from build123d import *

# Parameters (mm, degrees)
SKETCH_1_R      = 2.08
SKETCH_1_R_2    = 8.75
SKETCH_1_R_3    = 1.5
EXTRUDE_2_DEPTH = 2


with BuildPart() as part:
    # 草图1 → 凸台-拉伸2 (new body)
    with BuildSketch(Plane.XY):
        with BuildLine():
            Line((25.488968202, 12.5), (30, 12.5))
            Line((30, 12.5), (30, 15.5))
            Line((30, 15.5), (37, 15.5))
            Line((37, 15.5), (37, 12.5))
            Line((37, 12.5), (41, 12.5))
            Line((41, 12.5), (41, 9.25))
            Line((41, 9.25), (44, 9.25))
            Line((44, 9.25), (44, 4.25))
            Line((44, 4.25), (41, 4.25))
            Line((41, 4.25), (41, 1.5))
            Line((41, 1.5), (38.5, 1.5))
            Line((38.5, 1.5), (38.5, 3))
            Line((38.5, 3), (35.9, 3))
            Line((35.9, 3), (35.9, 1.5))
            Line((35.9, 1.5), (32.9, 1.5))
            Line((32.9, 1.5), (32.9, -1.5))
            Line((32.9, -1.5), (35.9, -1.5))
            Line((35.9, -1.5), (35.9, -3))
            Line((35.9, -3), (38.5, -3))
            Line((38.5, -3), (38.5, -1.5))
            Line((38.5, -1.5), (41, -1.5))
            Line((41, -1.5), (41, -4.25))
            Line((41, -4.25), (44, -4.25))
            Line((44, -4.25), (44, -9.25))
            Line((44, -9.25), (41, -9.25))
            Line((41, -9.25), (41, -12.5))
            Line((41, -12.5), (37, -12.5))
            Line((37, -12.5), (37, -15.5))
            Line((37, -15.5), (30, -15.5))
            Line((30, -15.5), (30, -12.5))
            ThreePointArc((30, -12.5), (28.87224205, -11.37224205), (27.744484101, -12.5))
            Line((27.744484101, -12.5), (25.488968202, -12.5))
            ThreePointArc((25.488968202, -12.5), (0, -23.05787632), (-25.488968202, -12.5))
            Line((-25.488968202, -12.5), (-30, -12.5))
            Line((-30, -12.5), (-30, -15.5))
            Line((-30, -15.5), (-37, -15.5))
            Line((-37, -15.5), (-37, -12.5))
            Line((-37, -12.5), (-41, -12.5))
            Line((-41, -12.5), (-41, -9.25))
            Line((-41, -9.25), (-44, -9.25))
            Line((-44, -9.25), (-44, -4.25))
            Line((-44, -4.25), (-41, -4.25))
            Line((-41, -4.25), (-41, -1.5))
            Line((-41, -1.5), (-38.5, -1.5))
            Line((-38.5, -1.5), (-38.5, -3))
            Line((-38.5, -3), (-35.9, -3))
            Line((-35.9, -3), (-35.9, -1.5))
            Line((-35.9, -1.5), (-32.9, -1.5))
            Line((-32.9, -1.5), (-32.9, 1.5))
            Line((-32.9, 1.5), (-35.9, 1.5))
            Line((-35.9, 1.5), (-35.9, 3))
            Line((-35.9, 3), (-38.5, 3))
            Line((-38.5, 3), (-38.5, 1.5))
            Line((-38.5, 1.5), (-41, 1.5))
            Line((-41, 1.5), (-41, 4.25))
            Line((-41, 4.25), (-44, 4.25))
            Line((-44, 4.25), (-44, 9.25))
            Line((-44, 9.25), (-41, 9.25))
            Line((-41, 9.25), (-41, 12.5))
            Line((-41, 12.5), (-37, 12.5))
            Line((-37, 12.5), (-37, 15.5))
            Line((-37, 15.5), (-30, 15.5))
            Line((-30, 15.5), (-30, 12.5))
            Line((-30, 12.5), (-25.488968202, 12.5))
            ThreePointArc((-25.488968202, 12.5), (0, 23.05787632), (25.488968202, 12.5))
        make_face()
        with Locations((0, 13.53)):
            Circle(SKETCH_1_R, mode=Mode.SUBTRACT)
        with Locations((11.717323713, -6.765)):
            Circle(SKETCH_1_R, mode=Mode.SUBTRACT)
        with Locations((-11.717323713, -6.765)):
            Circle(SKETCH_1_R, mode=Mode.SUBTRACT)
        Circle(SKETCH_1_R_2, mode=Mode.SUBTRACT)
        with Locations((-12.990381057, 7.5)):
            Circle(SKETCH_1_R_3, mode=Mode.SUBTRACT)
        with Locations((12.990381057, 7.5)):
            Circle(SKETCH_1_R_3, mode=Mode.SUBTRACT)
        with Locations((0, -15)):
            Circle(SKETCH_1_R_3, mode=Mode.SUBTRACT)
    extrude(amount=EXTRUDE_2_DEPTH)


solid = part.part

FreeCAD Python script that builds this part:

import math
import FreeCAD as App
import Part
import Sketcher
from FreeCAD import Vector
Q = App.Units.Quantity

doc = App.newDocument("Part")
body = doc.addObject("PartDesign::Body", "Body")

# Sketch on XY plane
sketch1 = body.newObject("Sketcher::SketchObject", "Sketch")
sketch1.AttachmentSupport = (doc.getObject("XY_Plane"), [""])
sketch1.MapMode = "FlatFace"
sketch1.addGeometry([
    Part.LineSegment(Vector(30, 12.5, 0), Vector(25.5, 12.5, 0)),  # 0
    Part.ArcOfCircle(Part.Circle(Vector(0, -13, 0), Vector(0, 0, 1), 36), math.radians(45), math.radians(135)),  # 1
    Part.LineSegment(Vector(-25.5, 12.5, 0), Vector(-30, 12.5, 0)),  # 2
    Part.LineSegment(Vector(-30, 12.5, 0), Vector(-30, 15.5, 0)),  # 3
    Part.LineSegment(Vector(-30, 15.5, 0), Vector(-37, 15.5, 0)),  # 4
    Part.LineSegment(Vector(-37, 15.5, 0), Vector(-37, 12.5, 0)),  # 5
    Part.LineSegment(Vector(-37, 12.5, 0), Vector(-41, 12.5, 0)),  # 6
    Part.LineSegment(Vector(-41, 12.5, 0), Vector(-41, 9.2, 0)),  # 7
    Part.LineSegment(Vector(-41, 9.2, 0), Vector(-44, 9.2, 0)),  # 8
    Part.LineSegment(Vector(-44, 9.2, 0), Vector(-44, 4.2, 0)),  # 9
    Part.LineSegment(Vector(-44, 4.2, 0), Vector(-41, 4.2, 0)),  # 10
    Part.LineSegment(Vector(-41, 4.2, 0), Vector(-41, 1.5, 0)),  # 11
    Part.LineSegment(Vector(-41, 1.5, 0), Vector(-38.5, 1.5, 0)),  # 12
    Part.LineSegment(Vector(-38.5, 1.5, 0), Vector(-38.5, 3, 0)),  # 13
    Part.LineSegment(Vector(-38.5, 3, 0), Vector(-35.9, 3, 0)),  # 14
    Part.LineSegment(Vector(-35.9, 3, 0), Vector(-35.9, 1.5, 0)),  # 15
    Part.LineSegment(Vector(-35.9, 1.5, 0), Vector(-32.9, 1.5, 0)),  # 16
    Part.LineSegment(Vector(-32.9, 1.5, 0), Vector(-32.9, -1.5, 0)),  # 17
    Part.LineSegment(Vector(-32.9, -1.5, 0), Vector(-35.9, -1.5, 0)),  # 18
    Part.LineSegment(Vector(-35.9, -1.5, 0), Vector(-35.9, -3, 0)),  # 19
    Part.LineSegment(Vector(-35.9, -3, 0), Vector(-38.5, -3, 0)),  # 20
    Part.LineSegment(Vector(-38.5, -3, 0), Vector(-38.5, -1.5, 0)),  # 21
    Part.LineSegment(Vector(-38.5, -1.5, 0), Vector(-41, -1.5, 0)),  # 22
    Part.LineSegment(Vector(-41, -1.5, 0), Vector(-41, -4.2, 0)),  # 23
    Part.LineSegment(Vector(-41, -4.2, 0), Vector(-44, -4.2, 0)),  # 24
    Part.LineSegment(Vector(-44, -4.2, 0), Vector(-44, -9.2, 0)),  # 25
    Part.LineSegment(Vector(-44, -9.2, 0), Vector(-41, -9.2, 0)),  # 26
    Part.LineSegment(Vector(-41, -9.2, 0), Vector(-41, -12.5, 0)),  # 27
    Part.LineSegment(Vector(-41, -12.5, 0), Vector(-37, -12.5, 0)),  # 28
    Part.LineSegment(Vector(-37, -12.5, 0), Vector(-37, -15.5, 0)),  # 29
    Part.LineSegment(Vector(-37, -15.5, 0), Vector(-30, -15.5, 0)),  # 30
    Part.LineSegment(Vector(-30, -15.5, 0), Vector(-30, -12.5, 0)),  # 31
    Part.LineSegment(Vector(-30, -12.5, 0), Vector(-25.5, -12.5, 0)),  # 32
    Part.ArcOfCircle(Part.Circle(Vector(0, 13, 0), Vector(0, 0, 1), 36), math.radians(-135), math.radians(-45)),  # 33
    Part.LineSegment(Vector(25.5, -12.5, 0), Vector(27.7, -12.5, 0)),  # 34
    Part.ArcOfCircle(Part.Circle(Vector(28.9, -12.5, 0), Vector(0, 0, 1), 1.1), math.radians(0), math.radians(180)),  # 35
    Part.LineSegment(Vector(30, -12.5, 0), Vector(30, -15.5, 0)),  # 36
    Part.LineSegment(Vector(30, -15.5, 0), Vector(37, -15.5, 0)),  # 37
    Part.LineSegment(Vector(37, -15.5, 0), Vector(37, -12.5, 0)),  # 38
    Part.LineSegment(Vector(37, -12.5, 0), Vector(41, -12.5, 0)),  # 39
    Part.LineSegment(Vector(41, -12.5, 0), Vector(41, -9.2, 0)),  # 40
    Part.LineSegment(Vector(41, -9.2, 0), Vector(44, -9.2, 0)),  # 41
    Part.LineSegment(Vector(44, -9.2, 0), Vector(44, -4.2, 0)),  # 42
    Part.LineSegment(Vector(44, -4.2, 0), Vector(41, -4.2, 0)),  # 43
    Part.LineSegment(Vector(41, -4.2, 0), Vector(41, -1.5, 0)),  # 44
    Part.LineSegment(Vector(41, -1.5, 0), Vector(38.5, -1.5, 0)),  # 45
    Part.LineSegment(Vector(38.5, -1.5, 0), Vector(38.5, -3, 0)),  # 46
    Part.LineSegment(Vector(38.5, -3, 0), Vector(35.9, -3, 0)),  # 47
    Part.LineSegment(Vector(35.9, -3, 0), Vector(35.9, -1.5, 0)),  # 48
    Part.LineSegment(Vector(35.9, -1.5, 0), Vector(32.9, -1.5, 0)),  # 49
    Part.LineSegment(Vector(32.9, -1.5, 0), Vector(32.9, 1.5, 0)),  # 50
    Part.LineSegment(Vector(32.9, 1.5, 0), Vector(35.9, 1.5, 0)),  # 51
    Part.LineSegment(Vector(35.9, 1.5, 0), Vector(35.9, 3, 0)),  # 52
    Part.LineSegment(Vector(35.9, 3, 0), Vector(38.5, 3, 0)),  # 53
    Part.LineSegment(Vector(38.5, 3, 0), Vector(38.5, 1.5, 0)),  # 54
    Part.LineSegment(Vector(38.5, 1.5, 0), Vector(41, 1.5, 0)),  # 55
    Part.LineSegment(Vector(41, 1.5, 0), Vector(41, 4.2, 0)),  # 56
    Part.LineSegment(Vector(41, 4.2, 0), Vector(44, 4.2, 0)),  # 57
    Part.LineSegment(Vector(44, 4.2, 0), Vector(44, 9.2, 0)),  # 58
    Part.LineSegment(Vector(44, 9.2, 0), Vector(41, 9.2, 0)),  # 59
    Part.LineSegment(Vector(41, 9.2, 0), Vector(41, 12.5, 0)),  # 60
    Part.LineSegment(Vector(41, 12.5, 0), Vector(37, 12.5, 0)),  # 61
    Part.LineSegment(Vector(37, 12.5, 0), Vector(37, 15.5, 0)),  # 62
    Part.LineSegment(Vector(37, 15.5, 0), Vector(30, 15.5, 0)),  # 63
    Part.LineSegment(Vector(30, 15.5, 0), Vector(30, 12.5, 0)),  # 64
    Part.Circle(Vector(0, -15, 0), Vector(0, 0, 1), 1.5),  # 65
    Part.Circle(Vector(11.7, -6.8, 0), Vector(0, 0, 1), 2.1),  # 66
    Part.Circle(Vector(-11.7, -6.8, 0), Vector(0, 0, 1), 2.1),  # 67
    Part.Circle(Vector(13, 7.5, 0), Vector(0, 0, 1), 1.5),  # 68
    Part.Circle(Vector(0, 0, 0), Vector(0, 0, 1), 8.8),  # 69
    Part.Circle(Vector(0, 13.5, 0), Vector(0, 0, 1), 2.1),  # 70
    Part.Circle(Vector(-13, 7.5, 0), Vector(0, 0, 1), 1.5),  # 71
], False)
sketch1.addConstraint([
    Sketcher.Constraint("Coincident", 0, 2, 1, 1),
    Sketcher.Constraint("Coincident", 1, 2, 2, 1),
    Sketcher.Constraint("Coincident", 2, 2, 3, 1),
    Sketcher.Constraint("Coincident", 3, 2, 4, 1),
    Sketcher.Constraint("Coincident", 4, 2, 5, 1),
    Sketcher.Constraint("Coincident", 5, 2, 6, 1),
    Sketcher.Constraint("Coincident", 6, 2, 7, 1),
    Sketcher.Constraint("Coincident", 7, 2, 8, 1),
    Sketcher.Constraint("Coincident", 8, 2, 9, 1),
    Sketcher.Constraint("Coincident", 9, 2, 10, 1),
    Sketcher.Constraint("Coincident", 10, 2, 11, 1),
    Sketcher.Constraint("Coincident", 11, 2, 12, 1),
    Sketcher.Constraint("Coincident", 12, 2, 13, 1),
    Sketcher.Constraint("Coincident", 13, 2, 14, 1),
    Sketcher.Constraint("Coincident", 14, 2, 15, 1),
    Sketcher.Constraint("Coincident", 15, 2, 16, 1),
    Sketcher.Constraint("Coincident", 16, 2, 17, 1),
    Sketcher.Constraint("Coincident", 17, 2, 18, 1),
    Sketcher.Constraint("Coincident", 18, 2, 19, 1),
    Sketcher.Constraint("Coincident", 19, 2, 20, 1),
    Sketcher.Constraint("Coincident", 20, 2, 21, 1),
    Sketcher.Constraint("Coincident", 21, 2, 22, 1),
    Sketcher.Constraint("Coincident", 22, 2, 23, 1),
    Sketcher.Constraint("Coincident", 23, 2, 24, 1),
    Sketcher.Constraint("Coincident", 24, 2, 25, 1),
    Sketcher.Constraint("Coincident", 25, 2, 26, 1),
    Sketcher.Constraint("Coincident", 26, 2, 27, 1),
    Sketcher.Constraint("Coincident", 27, 2, 28, 1),
    Sketcher.Constraint("Coincident", 28, 2, 29, 1),
    Sketcher.Constraint("Coincident", 29, 2, 30, 1),
    Sketcher.Constraint("Coincident", 30, 2, 31, 1),
    Sketcher.Constraint("Coincident", 31, 2, 32, 1),
    Sketcher.Constraint("Coincident", 32, 2, 33, 1),
    Sketcher.Constraint("Coincident", 33, 2, 34, 1),
    Sketcher.Constraint("Coincident", 34, 2, 35, 2),
    Sketcher.Constraint("Tangent", 35, 1, 36, 1),
    Sketcher.Constraint("Coincident", 36, 2, 37, 1),
    Sketcher.Constraint("Coincident", 37, 2, 38, 1),
    Sketcher.Constraint("Coincident", 38, 2, 39, 1),
    Sketcher.Constraint("Coincident", 39, 2, 40, 1),
    Sketcher.Constraint("Coincident", 40, 2, 41, 1),
    Sketcher.Constraint("Coincident", 41, 2, 42, 1),
    Sketcher.Constraint("Coincident", 42, 2, 43, 1),
    Sketcher.Constraint("Coincident", 43, 2, 44, 1),
    Sketcher.Constraint("Coincident", 44, 2, 45, 1),
    Sketcher.Constraint("Coincident", 45, 2, 46, 1),
    Sketcher.Constraint("Coincident", 46, 2, 47, 1),
    Sketcher.Constraint("Coincident", 47, 2, 48, 1),
    Sketcher.Constraint("Coincident", 48, 2, 49, 1),
    Sketcher.Constraint("Coincident", 49, 2, 50, 1),
    Sketcher.Constraint("Coincident", 50, 2, 51, 1),
    Sketcher.Constraint("Coincident", 51, 2, 52, 1),
    Sketcher.Constraint("Coincident", 52, 2, 53, 1),
    Sketcher.Constraint("Coincident", 53, 2, 54, 1),
    Sketcher.Constraint("Coincident", 54, 2, 55, 1),
    Sketcher.Constraint("Coincident", 55, 2, 56, 1),
    Sketcher.Constraint("Coincident", 56, 2, 57, 1),
    Sketcher.Constraint("Coincident", 57, 2, 58, 1),
    Sketcher.Constraint("Coincident", 58, 2, 59, 1),
    Sketcher.Constraint("Coincident", 59, 2, 60, 1),
    Sketcher.Constraint("Coincident", 60, 2, 61, 1),
    Sketcher.Constraint("Coincident", 61, 2, 62, 1),
    Sketcher.Constraint("Coincident", 62, 2, 63, 1),
    Sketcher.Constraint("Coincident", 63, 2, 64, 1),
    Sketcher.Constraint("Coincident", 64, 2, 0, 1),
    Sketcher.Constraint("Horizontal", 0),
    Sketcher.Constraint("Horizontal", 2),
    Sketcher.Constraint("Vertical", 3),
    Sketcher.Constraint("Horizontal", 4),
    Sketcher.Constraint("Vertical", 5),
    Sketcher.Constraint("Horizontal", 6),
    Sketcher.Constraint("Vertical", 7),
    Sketcher.Constraint("Horizontal", 8),
    Sketcher.Constraint("Vertical", 9),
    Sketcher.Constraint("Horizontal", 10),
    Sketcher.Constraint("Vertical", 11),
    Sketcher.Constraint("Horizontal", 12),
    Sketcher.Constraint("Vertical", 13),
    Sketcher.Constraint("Horizontal", 14),
    Sketcher.Constraint("Vertical", 15),
    Sketcher.Constraint("Horizontal", 16),
    Sketcher.Constraint("Vertical", 17),
    Sketcher.Constraint("Horizontal", 18),
    Sketcher.Constraint("Vertical", 19),
    Sketcher.Constraint("Horizontal", 20),
    Sketcher.Constraint("Vertical", 21),
    Sketcher.Constraint("Horizontal", 22),
    Sketcher.Constraint("Vertical", 23),
    Sketcher.Constraint("Horizontal", 24),
    Sketcher.Constraint("Vertical", 25),
    Sketcher.Constraint("Horizontal", 26),
    Sketcher.Constraint("Vertical", 27),
    Sketcher.Constraint("Horizontal", 28),
    Sketcher.Constraint("Vertical", 29),
    Sketcher.Constraint("Horizontal", 30),
    Sketcher.Constraint("Vertical", 31),
    Sketcher.Constraint("Horizontal", 32),
    Sketcher.Constraint("Horizontal", 34),
    Sketcher.Constraint("Vertical", 36),
    Sketcher.Constraint("Horizontal", 37),
    Sketcher.Constraint("Vertical", 38),
    Sketcher.Constraint("Horizontal", 39),
    Sketcher.Constraint("Vertical", 40),
    Sketcher.Constraint("Horizontal", 41),
    Sketcher.Constraint("Vertical", 42),
    Sketcher.Constraint("Horizontal", 43),
    Sketcher.Constraint("Vertical", 44),
    Sketcher.Constraint("Horizontal", 45),
    Sketcher.Constraint("Vertical", 46),
    Sketcher.Constraint("Horizontal", 47),
    Sketcher.Constraint("Vertical", 48),
    Sketcher.Constraint("Horizontal", 49),
    Sketcher.Constraint("Vertical", 50),
    Sketcher.Constraint("Horizontal", 51),
    Sketcher.Constraint("Vertical", 52),
    Sketcher.Constraint("Horizontal", 53),
    Sketcher.Constraint("Vertical", 54),
    Sketcher.Constraint("Horizontal", 55),
    Sketcher.Constraint("Vertical", 56),
    Sketcher.Constraint("Horizontal", 57),
    Sketcher.Constraint("Vertical", 58),
    Sketcher.Constraint("Horizontal", 59),
    Sketcher.Constraint("Vertical", 60),
    Sketcher.Constraint("Horizontal", 61),
    Sketcher.Constraint("Vertical", 62),
    Sketcher.Constraint("Horizontal", 63),
    Sketcher.Constraint("Vertical", 64),
    Sketcher.Constraint("Coincident", 69, 3, -1, 1),
    Sketcher.Constraint("Equal", 1, 33),
    Sketcher.Constraint("Equal", 66, 67),
    Sketcher.Constraint("Equal", 65, 68),
    Sketcher.Constraint("Equal", 67, 70),
    Sketcher.Constraint("Equal", 68, 71),
    Sketcher.Constraint("Symmetric", 1, 3, 33, 3, -1, 1),
    Sketcher.Constraint("Symmetric", 2, 2, 35, 1, -1, 1),
    Sketcher.Constraint("Symmetric", 4, 2, 37, 2, -1, 1),
    Sketcher.Constraint("Symmetric", 6, 2, 39, 2, -1, 1),
    Sketcher.Constraint("Symmetric", 8, 2, 41, 2, -1, 1),
    Sketcher.Constraint("Symmetric", 10, 2, 43, 2, -1, 1),
    Sketcher.Constraint("Symmetric", 12, 2, 45, 2, -1, 1),
    Sketcher.Constraint("Symmetric", 14, 2, 47, 2, -1, 1),
    Sketcher.Constraint("Symmetric", 16, 2, 49, 2, -1, 1),
    Sketcher.Constraint("Symmetric", 18, 2, 51, 2, -1, 1),
    Sketcher.Constraint("Symmetric", 20, 2, 53, 2, -1, 1),
    Sketcher.Constraint("Symmetric", 22, 2, 55, 2, -1, 1),
    Sketcher.Constraint("Symmetric", 24, 2, 57, 2, -1, 1),
    Sketcher.Constraint("Symmetric", 26, 2, 59, 2, -1, 1),
    Sketcher.Constraint("Symmetric", 28, 2, 61, 2, -1, 1),
    Sketcher.Constraint("Symmetric", 30, 2, 63, 2, -1, 1),
    Sketcher.Constraint("Symmetric", 66, 3, 67, 3, -2),
    Sketcher.Constraint("Symmetric", 68, 3, 71, 3, -2),
    Sketcher.Constraint("Symmetric", 0, 2, 1, 2, -2),
    Sketcher.Constraint("Symmetric", 31, 2, 35, 1, -2),
    Sketcher.Constraint("Symmetric", 29, 2, 37, 2, -2),
    Sketcher.Constraint("Symmetric", 27, 2, 39, 2, -2),
    Sketcher.Constraint("Symmetric", 25, 2, 41, 2, -2),
    Sketcher.Constraint("Symmetric", 23, 2, 43, 2, -2),
    Sketcher.Constraint("Symmetric", 21, 2, 45, 2, -2),
    Sketcher.Constraint("Symmetric", 19, 2, 47, 2, -2),
    Sketcher.Constraint("PointOnObject", 65, 3, -2),
    Sketcher.Constraint("PointOnObject", 70, 3, -2),
    Sketcher.Constraint("Horizontal", 2, 2, 5, 2),
    Sketcher.Constraint("Horizontal", 12, 2, 15, 2),
    Sketcher.Constraint("Horizontal", 18, 2, 21, 2),
    Sketcher.Constraint("Horizontal", 32, 2, 33, 2),
    Sketcher.Constraint("Vertical", 7, 2, 10, 2),
    Sketcher.Constraint("Equal", 10, 16),
    Sketcher.Constraint("Equal", 59, 3),
    Sketcher.Constraint("Equal", 5, 17),
    Sketcher.Constraint("Diameter", 65, Q("3 mm")),
    Sketcher.Constraint("Diameter", 69, Q("17.5 mm")),
    Sketcher.Constraint("Diameter", 66, Q("4.16 mm")),
    Sketcher.Constraint("DistanceX", 4, 2, 4, 1, Q("7 mm")),
    Sketcher.Constraint("DistanceX", 6, 2, 6, 1, Q("4 mm")),
    Sketcher.Constraint("DistanceX", 8, 2, 8, 1, Q("3 mm")),
    Sketcher.Constraint("DistanceY", 9, 2, 9, 1, Q("5 mm")),
    Sketcher.Constraint("DistanceX", 12, 1, 12, 2, Q("2.5 mm")),
    Sketcher.Constraint("DistanceX", 14, 1, 14, 2, Q("2.6 mm")),
    Sketcher.Constraint("DistanceY", 13, 1, 13, 2, Q("1.5 mm")),
    Sketcher.Constraint("DistanceY", 65, 3, -1, 1, Q("15 mm")),
    Sketcher.Constraint("DistanceX", 2, 2, -1, 1, Q("30 mm")),
    Sketcher.Constraint("DistanceY", 7, 2, 7, 1, Q("3.25 mm")),
    Sketcher.Constraint("DistanceY", 11, 2, 11, 1, Q("2.75 mm")),
    Sketcher.Constraint("DistanceY", -1, 1, 68, 3, Q("7.5 mm")),
    Sketcher.Constraint("DistanceY", -1, 1, 70, 3, Q("13.53 mm")),
    Sketcher.Constraint("DistanceY", 66, 3, -1, 1, Q("6.765 mm")),
    Sketcher.Constraint("Radius", 1, Q("36.046845 mm")),
    Sketcher.Constraint("Radius", 35, Q("1.127758 mm")),
    Sketcher.Constraint("DistanceX", 0, 2, 0, 1, Q("4.511032 mm")),
    Sketcher.Constraint("DistanceX", -1, 1, 68, 3, Q("12.990381 mm")),
    Sketcher.Constraint("DistanceX", -1, 1, 66, 3, Q("11.717324 mm")),
])
pad1 = body.newObject("PartDesign::Pad", "Pad")
pad1.Profile = sketch1
pad1.Length = 2

doc.recompute()
